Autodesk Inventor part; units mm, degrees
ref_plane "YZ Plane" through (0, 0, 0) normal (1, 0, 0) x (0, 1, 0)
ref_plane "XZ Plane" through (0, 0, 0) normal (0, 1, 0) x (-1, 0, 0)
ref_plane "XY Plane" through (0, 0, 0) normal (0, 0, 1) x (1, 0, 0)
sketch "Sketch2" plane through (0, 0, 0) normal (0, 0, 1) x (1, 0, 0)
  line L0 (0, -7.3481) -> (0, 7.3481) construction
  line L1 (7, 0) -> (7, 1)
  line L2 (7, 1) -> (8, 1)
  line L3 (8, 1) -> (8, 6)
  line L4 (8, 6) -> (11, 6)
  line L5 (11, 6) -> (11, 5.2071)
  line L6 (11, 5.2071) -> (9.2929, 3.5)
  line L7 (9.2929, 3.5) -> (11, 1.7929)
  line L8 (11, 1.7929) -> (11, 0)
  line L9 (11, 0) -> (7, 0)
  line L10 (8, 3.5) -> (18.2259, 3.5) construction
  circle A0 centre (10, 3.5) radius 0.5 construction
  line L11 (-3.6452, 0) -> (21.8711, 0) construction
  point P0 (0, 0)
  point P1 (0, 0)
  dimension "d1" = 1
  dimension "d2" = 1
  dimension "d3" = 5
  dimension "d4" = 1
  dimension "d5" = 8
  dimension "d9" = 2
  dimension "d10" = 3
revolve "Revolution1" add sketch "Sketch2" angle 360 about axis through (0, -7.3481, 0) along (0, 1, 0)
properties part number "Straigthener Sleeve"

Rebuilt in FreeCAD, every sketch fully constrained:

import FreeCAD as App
import Part
import Sketcher
Q = App.Units.Quantity

doc = App.newDocument("Part")
body = doc.addObject("PartDesign::Body", "Body")

# Sketch on XY plane
sketch1 = body.newObject("Sketcher::SketchObject", "Sketch")
sketch1.AttachmentSupport = (doc.getObject("XY_Plane"), [""])
sketch1.MapMode = "FlatFace"
sketch1.addGeometry([
    Part.LineSegment(App.Vector(7, 1, 0), App.Vector(7, 0, 0)),  # 0
    Part.LineSegment(App.Vector(7, 0, 0), App.Vector(11, 0, 0)),  # 1
    Part.LineSegment(App.Vector(11, 0, 0), App.Vector(11, 1.7929, 0)),  # 2
    Part.LineSegment(App.Vector(11, 1.7929, 0), App.Vector(9.2929, 3.5, 0)),  # 3
    Part.LineSegment(App.Vector(9.2929, 3.5, 0), App.Vector(11, 5.2071, 0)),  # 4
    Part.LineSegment(App.Vector(11, 5.2071, 0), App.Vector(11, 6, 0)),  # 5
    Part.LineSegment(App.Vector(11, 6, 0), App.Vector(8, 6, 0)),  # 6
    Part.LineSegment(App.Vector(8, 6, 0), App.Vector(8, 1, 0)),  # 7
    Part.LineSegment(App.Vector(8, 1, 0), App.Vector(7, 1, 0)),  # 8
], False)
sketch1.addConstraint([
    Sketcher.Constraint("Coincident", 0, 2, 1, 1),
    Sketcher.Constraint("Coincident", 1, 2, 2, 1),
    Sketcher.Constraint("Coincident", 2, 2, 3, 1),
    Sketcher.Constraint("Coincident", 3, 2, 4, 1),
    Sketcher.Constraint("Coincident", 4, 2, 5, 1),
    Sketcher.Constraint("Coincident", 5, 2, 6, 1),
    Sketcher.Constraint("Coincident", 6, 2, 7, 1),
    Sketcher.Constraint("Coincident", 7, 2, 8, 1),
    Sketcher.Constraint("Coincident", 8, 2, 0, 1),
    Sketcher.Constraint("Vertical", 0),
    Sketcher.Constraint("Horizontal", 1),
    Sketcher.Constraint("Vertical", 2),
    Sketcher.Constraint("Vertical", 5),
    Sketcher.Constraint("Horizontal", 6),
    Sketcher.Constraint("Vertical", 7),
    Sketcher.Constraint("Horizontal", 8),
    Sketcher.Constraint("PointOnObject", 0, 2, -1),
    Sketcher.Constraint("Perpendicular", 3, 4),
    Sketcher.Constraint("Vertical", 2, 2, 4, 2),
    Sketcher.Constraint("Equal", 8, 0),
    Sketcher.Constraint("Equal", 3, 4),
    Sketcher.Constraint("DistanceX", 6, 2, 6, 1, Q("3 mm")),
    Sketcher.Constraint("DistanceX", 8, 2, 8, 1, Q("1 mm")),
    Sketcher.Constraint("DistanceY", 7, 2, 7, 1, Q("5 mm")),
    Sketcher.Constraint("DistanceX", -1, 1, 6, 2, Q("8 mm")),
    Sketcher.Constraint("DistanceY", -1, 1, 3, 2, Q("3.5 mm")),
    Sketcher.Constraint("DistanceY", 2, 1, 2, 2, Q("1.793 mm")),
])
revolution = body.newObject("PartDesign::Revolution", "Revolution")
revolution.Profile = sketch1
revolution.ReferenceAxis = (sketch1, ["V_Axis"])
revolution.Angle = 360

doc.recompute()
